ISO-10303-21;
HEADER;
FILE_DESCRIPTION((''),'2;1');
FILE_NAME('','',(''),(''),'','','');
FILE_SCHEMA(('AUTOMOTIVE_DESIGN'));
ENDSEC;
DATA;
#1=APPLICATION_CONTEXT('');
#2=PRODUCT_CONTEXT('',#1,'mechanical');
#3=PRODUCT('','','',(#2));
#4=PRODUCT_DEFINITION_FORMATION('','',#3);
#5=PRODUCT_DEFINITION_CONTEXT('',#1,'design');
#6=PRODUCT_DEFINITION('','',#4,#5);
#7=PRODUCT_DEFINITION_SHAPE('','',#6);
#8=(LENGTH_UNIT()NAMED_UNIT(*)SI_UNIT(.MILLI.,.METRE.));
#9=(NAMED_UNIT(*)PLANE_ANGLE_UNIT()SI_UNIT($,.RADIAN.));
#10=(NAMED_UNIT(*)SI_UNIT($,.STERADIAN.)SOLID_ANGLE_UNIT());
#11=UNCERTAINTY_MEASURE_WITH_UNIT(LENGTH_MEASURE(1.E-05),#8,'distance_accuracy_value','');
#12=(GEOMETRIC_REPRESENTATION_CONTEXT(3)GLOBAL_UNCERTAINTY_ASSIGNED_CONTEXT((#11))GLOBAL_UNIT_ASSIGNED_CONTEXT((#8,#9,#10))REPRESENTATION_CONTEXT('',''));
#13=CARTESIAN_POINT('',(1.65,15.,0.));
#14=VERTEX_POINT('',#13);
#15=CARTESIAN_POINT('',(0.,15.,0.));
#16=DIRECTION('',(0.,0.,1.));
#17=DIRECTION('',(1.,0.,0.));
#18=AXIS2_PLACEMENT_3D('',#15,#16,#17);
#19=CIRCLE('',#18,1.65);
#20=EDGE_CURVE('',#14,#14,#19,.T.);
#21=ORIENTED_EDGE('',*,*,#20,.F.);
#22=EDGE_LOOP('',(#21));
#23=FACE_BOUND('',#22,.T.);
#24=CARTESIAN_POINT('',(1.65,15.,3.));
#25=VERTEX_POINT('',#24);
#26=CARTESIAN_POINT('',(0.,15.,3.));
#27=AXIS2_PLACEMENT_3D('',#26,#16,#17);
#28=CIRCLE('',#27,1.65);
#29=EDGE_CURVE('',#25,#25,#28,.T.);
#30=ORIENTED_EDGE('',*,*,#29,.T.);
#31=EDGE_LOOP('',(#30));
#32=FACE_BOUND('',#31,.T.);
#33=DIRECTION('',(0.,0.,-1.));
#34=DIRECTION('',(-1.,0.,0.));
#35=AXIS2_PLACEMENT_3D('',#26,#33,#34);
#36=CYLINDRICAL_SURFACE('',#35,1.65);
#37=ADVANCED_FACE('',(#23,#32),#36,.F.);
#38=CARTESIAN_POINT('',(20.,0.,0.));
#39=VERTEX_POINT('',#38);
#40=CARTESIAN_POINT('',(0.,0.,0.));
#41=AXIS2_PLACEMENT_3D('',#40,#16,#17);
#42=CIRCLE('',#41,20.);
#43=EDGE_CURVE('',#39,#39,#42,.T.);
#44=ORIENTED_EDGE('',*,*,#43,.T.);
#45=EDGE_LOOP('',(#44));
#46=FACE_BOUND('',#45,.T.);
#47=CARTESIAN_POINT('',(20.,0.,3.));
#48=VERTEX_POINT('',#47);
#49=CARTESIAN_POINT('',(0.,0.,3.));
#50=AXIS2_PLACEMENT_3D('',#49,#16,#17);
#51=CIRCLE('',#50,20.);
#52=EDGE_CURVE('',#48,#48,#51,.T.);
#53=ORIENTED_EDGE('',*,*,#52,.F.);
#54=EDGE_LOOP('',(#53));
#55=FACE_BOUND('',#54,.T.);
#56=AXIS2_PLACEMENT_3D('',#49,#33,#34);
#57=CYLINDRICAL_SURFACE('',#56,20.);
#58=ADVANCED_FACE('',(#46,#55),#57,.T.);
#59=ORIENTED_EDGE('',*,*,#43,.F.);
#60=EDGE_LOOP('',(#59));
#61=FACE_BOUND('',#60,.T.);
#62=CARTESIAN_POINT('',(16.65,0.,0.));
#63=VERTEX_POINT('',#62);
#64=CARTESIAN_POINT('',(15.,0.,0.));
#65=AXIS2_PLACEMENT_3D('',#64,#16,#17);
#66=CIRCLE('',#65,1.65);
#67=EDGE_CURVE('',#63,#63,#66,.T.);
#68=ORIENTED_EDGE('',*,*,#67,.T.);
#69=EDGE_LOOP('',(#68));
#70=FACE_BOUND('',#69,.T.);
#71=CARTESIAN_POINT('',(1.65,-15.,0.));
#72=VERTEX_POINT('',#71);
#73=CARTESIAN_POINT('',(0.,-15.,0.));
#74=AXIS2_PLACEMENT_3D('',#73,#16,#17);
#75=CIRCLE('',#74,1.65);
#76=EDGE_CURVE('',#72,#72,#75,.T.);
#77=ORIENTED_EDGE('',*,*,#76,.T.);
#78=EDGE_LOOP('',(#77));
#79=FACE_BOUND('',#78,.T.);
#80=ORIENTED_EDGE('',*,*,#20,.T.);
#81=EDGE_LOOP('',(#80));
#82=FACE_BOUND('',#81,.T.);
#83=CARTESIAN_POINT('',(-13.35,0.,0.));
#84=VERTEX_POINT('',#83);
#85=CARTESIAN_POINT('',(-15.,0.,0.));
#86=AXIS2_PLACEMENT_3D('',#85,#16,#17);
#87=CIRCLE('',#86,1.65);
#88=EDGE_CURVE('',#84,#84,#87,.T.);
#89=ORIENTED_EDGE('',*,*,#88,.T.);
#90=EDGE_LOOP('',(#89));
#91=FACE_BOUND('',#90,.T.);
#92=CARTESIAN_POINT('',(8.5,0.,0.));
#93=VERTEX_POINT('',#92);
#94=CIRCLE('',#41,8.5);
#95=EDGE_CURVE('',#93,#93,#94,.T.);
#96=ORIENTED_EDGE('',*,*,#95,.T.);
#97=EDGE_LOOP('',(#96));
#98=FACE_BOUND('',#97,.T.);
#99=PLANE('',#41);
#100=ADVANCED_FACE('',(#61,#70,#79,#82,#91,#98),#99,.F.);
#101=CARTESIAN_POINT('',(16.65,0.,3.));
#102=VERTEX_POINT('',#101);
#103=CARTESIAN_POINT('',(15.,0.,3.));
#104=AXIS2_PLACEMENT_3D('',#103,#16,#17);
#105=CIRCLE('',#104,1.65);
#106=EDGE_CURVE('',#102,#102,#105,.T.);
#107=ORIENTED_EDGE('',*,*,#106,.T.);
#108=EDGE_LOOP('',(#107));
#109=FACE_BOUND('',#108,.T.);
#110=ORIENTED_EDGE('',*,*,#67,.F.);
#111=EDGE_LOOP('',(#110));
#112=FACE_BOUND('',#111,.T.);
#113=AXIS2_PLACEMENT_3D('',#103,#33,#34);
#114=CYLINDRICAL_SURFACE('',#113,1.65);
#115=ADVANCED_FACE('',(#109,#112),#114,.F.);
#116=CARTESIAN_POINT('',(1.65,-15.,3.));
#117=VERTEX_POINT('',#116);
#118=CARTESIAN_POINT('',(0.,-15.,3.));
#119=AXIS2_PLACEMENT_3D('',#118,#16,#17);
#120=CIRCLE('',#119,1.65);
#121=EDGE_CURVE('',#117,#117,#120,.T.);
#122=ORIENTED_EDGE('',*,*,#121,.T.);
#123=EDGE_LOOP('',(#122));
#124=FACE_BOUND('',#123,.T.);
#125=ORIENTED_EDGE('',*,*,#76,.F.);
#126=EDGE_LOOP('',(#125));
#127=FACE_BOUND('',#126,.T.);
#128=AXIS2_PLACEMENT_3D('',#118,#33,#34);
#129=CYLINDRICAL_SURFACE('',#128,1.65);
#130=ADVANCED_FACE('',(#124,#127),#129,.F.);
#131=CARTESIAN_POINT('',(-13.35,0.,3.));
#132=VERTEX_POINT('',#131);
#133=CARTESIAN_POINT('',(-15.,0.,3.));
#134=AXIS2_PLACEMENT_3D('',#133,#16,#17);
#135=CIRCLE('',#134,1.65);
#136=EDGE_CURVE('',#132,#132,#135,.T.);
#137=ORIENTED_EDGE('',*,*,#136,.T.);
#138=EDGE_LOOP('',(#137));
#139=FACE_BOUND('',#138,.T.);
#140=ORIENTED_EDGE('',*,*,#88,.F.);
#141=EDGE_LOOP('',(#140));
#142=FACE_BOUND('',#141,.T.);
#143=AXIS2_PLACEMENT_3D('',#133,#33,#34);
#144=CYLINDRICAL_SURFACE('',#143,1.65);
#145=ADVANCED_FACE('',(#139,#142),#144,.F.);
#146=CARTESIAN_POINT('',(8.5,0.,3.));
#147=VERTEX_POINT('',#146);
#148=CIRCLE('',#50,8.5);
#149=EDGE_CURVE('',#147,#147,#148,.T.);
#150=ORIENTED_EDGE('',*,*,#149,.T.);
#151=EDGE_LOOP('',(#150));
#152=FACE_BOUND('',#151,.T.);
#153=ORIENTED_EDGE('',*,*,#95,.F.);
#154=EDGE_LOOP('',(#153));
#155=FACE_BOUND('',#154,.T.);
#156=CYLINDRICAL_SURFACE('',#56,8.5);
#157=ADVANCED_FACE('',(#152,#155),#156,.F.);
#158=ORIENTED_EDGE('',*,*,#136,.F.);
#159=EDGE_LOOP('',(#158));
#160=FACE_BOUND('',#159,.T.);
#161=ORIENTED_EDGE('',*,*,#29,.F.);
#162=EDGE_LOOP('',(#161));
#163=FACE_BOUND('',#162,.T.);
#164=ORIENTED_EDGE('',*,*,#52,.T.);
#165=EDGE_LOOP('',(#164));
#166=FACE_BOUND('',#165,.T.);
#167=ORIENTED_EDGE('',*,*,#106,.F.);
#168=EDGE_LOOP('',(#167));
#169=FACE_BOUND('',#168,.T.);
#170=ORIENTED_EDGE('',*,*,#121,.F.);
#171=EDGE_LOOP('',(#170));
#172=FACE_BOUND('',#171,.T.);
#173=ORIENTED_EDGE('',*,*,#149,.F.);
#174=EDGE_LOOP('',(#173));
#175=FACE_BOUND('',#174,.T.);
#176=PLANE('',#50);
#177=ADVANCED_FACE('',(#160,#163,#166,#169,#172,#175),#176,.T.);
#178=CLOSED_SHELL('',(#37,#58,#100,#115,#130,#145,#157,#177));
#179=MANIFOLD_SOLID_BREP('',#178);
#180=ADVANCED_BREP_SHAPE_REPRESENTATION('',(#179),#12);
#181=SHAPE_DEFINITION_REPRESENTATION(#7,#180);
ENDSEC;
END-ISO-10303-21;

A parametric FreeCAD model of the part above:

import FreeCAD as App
import Part
import Sketcher
from FreeCAD import Vector

doc = App.newDocument("Part")
body = doc.addObject("PartDesign::Body", "Body")

# Sketch on XY plane
sketch1 = doc.addObject("Sketcher::SketchObject", "Sketch")
body.addObject(sketch1)
sketch1.AttachmentSupport = (doc.XY_Plane, [""])
sketch1.MapMode = "FlatFace"
sketch1.addGeometry([
    Part.Circle(Vector(0, 0, 0), Vector(0, 0, 1), 20),  # 0
    Part.Circle(Vector(0, -15, 0), Vector(0, 0, 1), 1.65),  # 1
    Part.Circle(Vector(-15, 0, 0), Vector(0, 0, 1), 1.65),  # 2
    Part.Circle(Vector(0, 0, 0), Vector(0, 0, 1), 8.5),  # 3
    Part.Circle(Vector(15, 0, 0), Vector(0, 0, 1), 1.65),  # 4
    Part.Circle(Vector(0, 15, 0), Vector(0, 0, 1), 1.65),  # 5
], False)
sketch1.addConstraint([
    Sketcher.Constraint("Coincident", 0, 3, -1, 1),
    Sketcher.Constraint("Coincident", 3, 3, -1, 1),
    Sketcher.Constraint("Equal", 1, 2),
    Sketcher.Constraint("Equal", 2, 4),
    Sketcher.Constraint("Equal", 4, 5),
    Sketcher.Constraint("Symmetric", 2, 3, 4, 3, -1, 1),
    Sketcher.Constraint("Symmetric", 1, 3, 5, 3, -1, 1),
    Sketcher.Constraint("PointOnObject", 1, 3, -2),
    Sketcher.Constraint("PointOnObject", 2, 3, -1),
    Sketcher.Constraint("Diameter", 0, 40.0),
    Sketcher.Constraint("Diameter", 3, 17.0),
    Sketcher.Constraint("Diameter", 1, 3.3),
    Sketcher.Constraint("DistanceY", 1, 3, -1, 1, 15.0),
    Sketcher.Constraint("DistanceX", 2, 3, -1, 1, 15.0),
])
pad1 = doc.addObject("PartDesign::Pad", "Pad")
body.addObject(pad1)
pad1.Profile = sketch1
pad1.Length = 3

doc.recompute()
